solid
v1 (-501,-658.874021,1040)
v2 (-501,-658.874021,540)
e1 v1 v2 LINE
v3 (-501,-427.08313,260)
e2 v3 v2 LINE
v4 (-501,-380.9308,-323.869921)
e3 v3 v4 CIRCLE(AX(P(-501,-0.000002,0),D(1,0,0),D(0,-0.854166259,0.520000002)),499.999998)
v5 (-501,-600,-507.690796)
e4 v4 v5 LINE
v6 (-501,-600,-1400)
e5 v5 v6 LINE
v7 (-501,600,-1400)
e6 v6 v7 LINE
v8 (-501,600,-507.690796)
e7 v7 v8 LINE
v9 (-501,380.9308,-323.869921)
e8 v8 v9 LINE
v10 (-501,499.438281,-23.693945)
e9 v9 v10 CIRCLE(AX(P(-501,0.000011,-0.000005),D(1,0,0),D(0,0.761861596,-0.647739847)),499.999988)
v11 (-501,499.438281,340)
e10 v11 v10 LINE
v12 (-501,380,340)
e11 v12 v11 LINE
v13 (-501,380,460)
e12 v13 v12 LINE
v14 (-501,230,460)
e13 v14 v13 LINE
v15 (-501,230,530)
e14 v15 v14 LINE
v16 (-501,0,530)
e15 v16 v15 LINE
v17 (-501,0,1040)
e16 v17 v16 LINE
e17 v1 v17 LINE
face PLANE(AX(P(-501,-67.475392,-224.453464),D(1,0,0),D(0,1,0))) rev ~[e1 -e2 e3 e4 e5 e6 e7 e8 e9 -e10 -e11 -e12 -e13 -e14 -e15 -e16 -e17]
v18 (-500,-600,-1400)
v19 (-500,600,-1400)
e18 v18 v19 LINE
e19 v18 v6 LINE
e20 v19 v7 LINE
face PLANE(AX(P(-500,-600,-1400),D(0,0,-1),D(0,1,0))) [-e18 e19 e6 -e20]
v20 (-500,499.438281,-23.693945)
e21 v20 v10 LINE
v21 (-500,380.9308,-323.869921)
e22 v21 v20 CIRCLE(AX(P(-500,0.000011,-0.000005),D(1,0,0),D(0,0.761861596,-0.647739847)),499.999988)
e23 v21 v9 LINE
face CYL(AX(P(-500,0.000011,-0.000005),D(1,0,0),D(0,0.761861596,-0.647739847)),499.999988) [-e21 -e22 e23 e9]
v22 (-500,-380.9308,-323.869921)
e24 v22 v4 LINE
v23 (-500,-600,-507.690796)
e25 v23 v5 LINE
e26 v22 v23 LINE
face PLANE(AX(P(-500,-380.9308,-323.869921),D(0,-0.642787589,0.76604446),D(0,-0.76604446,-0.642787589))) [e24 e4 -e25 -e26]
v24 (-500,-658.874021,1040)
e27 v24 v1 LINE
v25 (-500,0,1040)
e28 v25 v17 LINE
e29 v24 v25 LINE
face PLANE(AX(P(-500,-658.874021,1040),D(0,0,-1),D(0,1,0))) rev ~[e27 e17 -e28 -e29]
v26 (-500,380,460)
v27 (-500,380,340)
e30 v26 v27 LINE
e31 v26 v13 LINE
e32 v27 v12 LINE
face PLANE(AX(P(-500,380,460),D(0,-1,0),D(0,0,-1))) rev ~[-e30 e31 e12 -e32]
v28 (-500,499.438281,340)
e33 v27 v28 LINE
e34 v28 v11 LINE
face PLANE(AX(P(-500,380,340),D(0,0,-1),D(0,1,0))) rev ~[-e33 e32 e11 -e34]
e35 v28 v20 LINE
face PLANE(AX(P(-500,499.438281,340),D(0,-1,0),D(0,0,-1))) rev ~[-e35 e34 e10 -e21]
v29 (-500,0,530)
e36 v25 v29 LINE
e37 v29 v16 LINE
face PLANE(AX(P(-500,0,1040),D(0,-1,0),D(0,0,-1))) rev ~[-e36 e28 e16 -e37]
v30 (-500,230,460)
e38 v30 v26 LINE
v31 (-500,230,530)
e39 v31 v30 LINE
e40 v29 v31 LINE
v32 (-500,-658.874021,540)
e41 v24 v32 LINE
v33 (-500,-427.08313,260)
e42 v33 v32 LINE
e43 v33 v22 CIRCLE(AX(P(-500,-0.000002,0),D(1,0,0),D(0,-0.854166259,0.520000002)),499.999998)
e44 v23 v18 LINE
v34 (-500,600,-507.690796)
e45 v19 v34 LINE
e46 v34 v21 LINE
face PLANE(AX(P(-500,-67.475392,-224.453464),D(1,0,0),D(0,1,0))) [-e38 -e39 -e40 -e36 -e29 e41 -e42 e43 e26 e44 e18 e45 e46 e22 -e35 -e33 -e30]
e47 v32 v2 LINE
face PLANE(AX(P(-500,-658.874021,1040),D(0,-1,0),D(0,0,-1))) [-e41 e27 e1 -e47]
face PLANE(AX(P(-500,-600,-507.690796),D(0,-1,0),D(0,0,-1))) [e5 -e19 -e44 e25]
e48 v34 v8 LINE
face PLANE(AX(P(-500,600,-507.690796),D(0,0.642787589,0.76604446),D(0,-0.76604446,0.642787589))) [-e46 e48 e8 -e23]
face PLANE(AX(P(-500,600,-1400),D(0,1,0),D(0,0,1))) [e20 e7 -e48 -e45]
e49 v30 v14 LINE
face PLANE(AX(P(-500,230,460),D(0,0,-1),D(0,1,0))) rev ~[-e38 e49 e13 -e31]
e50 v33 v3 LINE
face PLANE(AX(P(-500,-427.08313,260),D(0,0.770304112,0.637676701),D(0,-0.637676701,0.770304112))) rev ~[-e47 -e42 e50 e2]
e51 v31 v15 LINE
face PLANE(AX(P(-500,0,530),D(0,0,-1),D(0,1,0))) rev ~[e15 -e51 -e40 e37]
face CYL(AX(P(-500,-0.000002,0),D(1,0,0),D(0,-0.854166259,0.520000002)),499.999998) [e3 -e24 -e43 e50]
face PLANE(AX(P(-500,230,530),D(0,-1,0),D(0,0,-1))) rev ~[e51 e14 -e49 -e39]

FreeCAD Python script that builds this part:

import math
import FreeCAD as App
import Part
import Sketcher
from FreeCAD import Vector
Q = App.Units.Quantity

doc = App.newDocument("Part")
body = doc.addObject("PartDesign::Body", "Body")

sketch1 = body.newObject("Sketcher::SketchObject", "Sketch")
sketch1.AttachmentSupport = (doc.getObject("YZ_Plane"), [""])
sketch1.MapMode = "FlatFace"
sketch1.AttachmentOffset = App.Placement(Vector(0, 0, -500), App.Rotation())
sketch1.addGeometry(Part.ArcOfCircle(Part.Circle(Vector(-0.000002, 0, 0), Vector(0, 0, 1), 499.999998), math.radians(148.667748), math.radians(220.371412)), False)
sketch1.addGeometry(Part.LineSegment(Vector(-380.9308, -323.869921, 0), Vector(-600, -507.690796, 0)), False)
sketch1.addGeometry(Part.LineSegment(Vector(-600, -507.690796, 0), Vector(-600, -1400, 0)), False)
sketch1.addGeometry(Part.LineSegment(Vector(-600, -1400, 0), Vector(600, -1400, 0)), False)
sketch1.addGeometry(Part.LineSegment(Vector(600, -1400, 0), Vector(600, -507.690796, 0)), False)
sketch1.addGeometry(Part.LineSegment(Vector(600, -507.690796, 0), Vector(380.9308, -323.869921, 0)), False)
sketch1.addGeometry(Part.ArcOfCircle(Part.Circle(Vector(0.000011, -0.000005, 0), Vector(0, 0, 1), 499.999988), math.radians(-40.371412), math.radians(-2.716143)), False)
sketch1.addGeometry(Part.LineSegment(Vector(499.438281, -23.693945, 0), Vector(499.438281, 340, 0)), False)
sketch1.addGeometry(Part.LineSegment(Vector(499.438281, 340, 0), Vector(380, 340, 0)), False)
sketch1.addGeometry(Part.LineSegment(Vector(380, 340, 0), Vector(380, 460, 0)), False)
sketch1.addGeometry(Part.LineSegment(Vector(380, 460, 0), Vector(230, 460, 0)), False)
sketch1.addGeometry(Part.LineSegment(Vector(230, 460, 0), Vector(230, 530, 0)), False)
sketch1.addGeometry(Part.LineSegment(Vector(230, 530, 0), Vector(0, 530, 0)), False)
sketch1.addGeometry(Part.LineSegment(Vector(0, 530, 0), Vector(0, 1040, 0)), False)
sketch1.addGeometry(Part.LineSegment(Vector(0, 1040, 0), Vector(-658.874021, 1040, 0)), False)
sketch1.addGeometry(Part.LineSegment(Vector(-658.874021, 1040, 0), Vector(-658.874021, 540, 0)), False)
sketch1.addGeometry(Part.LineSegment(Vector(-658.874021, 540, 0), Vector(-427.08313, 260, 0)), False)
sketch1.addConstraint(Sketcher.Constraint("Coincident", 0, 2, 1, 1))
sketch1.addConstraint(Sketcher.Constraint("Coincident", 1, 2, 2, 1))
sketch1.addConstraint(Sketcher.Constraint("Coincident", 2, 2, 3, 1))
sketch1.addConstraint(Sketcher.Constraint("Coincident", 3, 2, 4, 1))
sketch1.addConstraint(Sketcher.Constraint("Coincident", 4, 2, 5, 1))
sketch1.addConstraint(Sketcher.Constraint("Coincident", 5, 2, 6, 1))
sketch1.addConstraint(Sketcher.Constraint("Coincident", 6, 2, 7, 1))
sketch1.addConstraint(Sketcher.Constraint("Coincident", 7, 2, 8, 1))
sketch1.addConstraint(Sketcher.Constraint("Coincident", 8, 2, 9, 1))
sketch1.addConstraint(Sketcher.Constraint("Coincident", 9, 2, 10, 1))
sketch1.addConstraint(Sketcher.Constraint("Coincident", 10, 2, 11, 1))
sketch1.addConstraint(Sketcher.Constraint("Coincident", 11, 2, 12, 1))
sketch1.addConstraint(Sketcher.Constraint("Coincident", 12, 2, 13, 1))
sketch1.addConstraint(Sketcher.Constraint("Coincident", 13, 2, 14, 1))
sketch1.addConstraint(Sketcher.Constraint("Coincident", 14, 2, 15, 1))
sketch1.addConstraint(Sketcher.Constraint("Coincident", 15, 2, 16, 1))
sketch1.addConstraint(Sketcher.Constraint("Coincident", 16, 2, 0, 1))
sketch1.addConstraint(Sketcher.Constraint("Vertical", 2))
sketch1.addConstraint(Sketcher.Constraint("Horizontal", 3))
sketch1.addConstraint(Sketcher.Constraint("Vertical", 4))
sketch1.addConstraint(Sketcher.Constraint("Vertical", 7))
sketch1.addConstraint(Sketcher.Constraint("Horizontal", 8))
sketch1.addConstraint(Sketcher.Constraint("Vertical", 9))
sketch1.addConstraint(Sketcher.Constraint("Horizontal", 10))
sketch1.addConstraint(Sketcher.Constraint("Vertical", 11))
sketch1.addConstraint(Sketcher.Constraint("Horizontal", 12))
sketch1.addConstraint(Sketcher.Constraint("Vertical", 13))
sketch1.addConstraint(Sketcher.Constraint("Horizontal", 14))
sketch1.addConstraint(Sketcher.Constraint("Vertical", 15))
sketch1.addConstraint(Sketcher.Constraint("Coincident", 0, 3, -1, 1))
sketch1.addConstraint(Sketcher.Constraint("Symmetric", 1, 2, 4, 2, -2))
sketch1.addConstraint(Sketcher.Constraint("Symmetric", 0, 2, 5, 2, -2))
sketch1.addConstraint(Sketcher.Constraint("PointOnObject", 12, 2, -2))
sketch1.addConstraint(Sketcher.Constraint("Radius", 0, 499.999998))
sketch1.addConstraint(Sketcher.Constraint("DistanceX", 3, 1, 3, 2, 1200.0))
sketch1.addConstraint(Sketcher.Constraint("DistanceX", 10, 2, 10, 1, 150.0))
sketch1.addConstraint(Sketcher.Constraint("DistanceX", 12, 2, 12, 1, 230.0))
sketch1.addConstraint(Sketcher.Constraint("DistanceY", 9, 1, 9, 2, 120.0))
sketch1.addConstraint(Sketcher.Constraint("DistanceY", 11, 1, 11, 2, 70.0))
sketch1.addConstraint(Sketcher.Constraint("DistanceY", 13, 1, 13, 2, 510.0))
sketch1.addConstraint(Sketcher.Constraint("DistanceY", 15, 2, 15, 1, 500.0))
sketch1.addConstraint(Sketcher.Constraint("Angle", 1, Q("-140.000002 deg")))
sketch1.addConstraint(Sketcher.Constraint("DistanceY", 2, 2, -1, 1, 1400.0))
sketch1.addConstraint(Sketcher.Constraint("DistanceY", -1, 1, 7, 2, 340.0))
sketch1.addConstraint(Sketcher.Constraint("DistanceY", -1, 1, 16, 2, 260.0))
sketch1.addConstraint(Sketcher.Constraint("Radius", 6, 499.999988))
sketch1.addConstraint(Sketcher.Constraint("DistanceX", 8, 2, 8, 1, 119.438281))
sketch1.addConstraint(Sketcher.Constraint("DistanceX", 14, 2, 14, 1, 658.874021))
sketch1.addConstraint(Sketcher.Constraint("DistanceX", -1, 1, 5, 2, 380.9308))
sketch1.addConstraint(Sketcher.Constraint("DistanceY", 7, 1, 7, 2, 363.693945))
pad1 = body.newObject("PartDesign::Pad", "Pad")
pad1.Profile = sketch1
pad1.Length = 1
pad1.Reversed = True

doc.recompute()
